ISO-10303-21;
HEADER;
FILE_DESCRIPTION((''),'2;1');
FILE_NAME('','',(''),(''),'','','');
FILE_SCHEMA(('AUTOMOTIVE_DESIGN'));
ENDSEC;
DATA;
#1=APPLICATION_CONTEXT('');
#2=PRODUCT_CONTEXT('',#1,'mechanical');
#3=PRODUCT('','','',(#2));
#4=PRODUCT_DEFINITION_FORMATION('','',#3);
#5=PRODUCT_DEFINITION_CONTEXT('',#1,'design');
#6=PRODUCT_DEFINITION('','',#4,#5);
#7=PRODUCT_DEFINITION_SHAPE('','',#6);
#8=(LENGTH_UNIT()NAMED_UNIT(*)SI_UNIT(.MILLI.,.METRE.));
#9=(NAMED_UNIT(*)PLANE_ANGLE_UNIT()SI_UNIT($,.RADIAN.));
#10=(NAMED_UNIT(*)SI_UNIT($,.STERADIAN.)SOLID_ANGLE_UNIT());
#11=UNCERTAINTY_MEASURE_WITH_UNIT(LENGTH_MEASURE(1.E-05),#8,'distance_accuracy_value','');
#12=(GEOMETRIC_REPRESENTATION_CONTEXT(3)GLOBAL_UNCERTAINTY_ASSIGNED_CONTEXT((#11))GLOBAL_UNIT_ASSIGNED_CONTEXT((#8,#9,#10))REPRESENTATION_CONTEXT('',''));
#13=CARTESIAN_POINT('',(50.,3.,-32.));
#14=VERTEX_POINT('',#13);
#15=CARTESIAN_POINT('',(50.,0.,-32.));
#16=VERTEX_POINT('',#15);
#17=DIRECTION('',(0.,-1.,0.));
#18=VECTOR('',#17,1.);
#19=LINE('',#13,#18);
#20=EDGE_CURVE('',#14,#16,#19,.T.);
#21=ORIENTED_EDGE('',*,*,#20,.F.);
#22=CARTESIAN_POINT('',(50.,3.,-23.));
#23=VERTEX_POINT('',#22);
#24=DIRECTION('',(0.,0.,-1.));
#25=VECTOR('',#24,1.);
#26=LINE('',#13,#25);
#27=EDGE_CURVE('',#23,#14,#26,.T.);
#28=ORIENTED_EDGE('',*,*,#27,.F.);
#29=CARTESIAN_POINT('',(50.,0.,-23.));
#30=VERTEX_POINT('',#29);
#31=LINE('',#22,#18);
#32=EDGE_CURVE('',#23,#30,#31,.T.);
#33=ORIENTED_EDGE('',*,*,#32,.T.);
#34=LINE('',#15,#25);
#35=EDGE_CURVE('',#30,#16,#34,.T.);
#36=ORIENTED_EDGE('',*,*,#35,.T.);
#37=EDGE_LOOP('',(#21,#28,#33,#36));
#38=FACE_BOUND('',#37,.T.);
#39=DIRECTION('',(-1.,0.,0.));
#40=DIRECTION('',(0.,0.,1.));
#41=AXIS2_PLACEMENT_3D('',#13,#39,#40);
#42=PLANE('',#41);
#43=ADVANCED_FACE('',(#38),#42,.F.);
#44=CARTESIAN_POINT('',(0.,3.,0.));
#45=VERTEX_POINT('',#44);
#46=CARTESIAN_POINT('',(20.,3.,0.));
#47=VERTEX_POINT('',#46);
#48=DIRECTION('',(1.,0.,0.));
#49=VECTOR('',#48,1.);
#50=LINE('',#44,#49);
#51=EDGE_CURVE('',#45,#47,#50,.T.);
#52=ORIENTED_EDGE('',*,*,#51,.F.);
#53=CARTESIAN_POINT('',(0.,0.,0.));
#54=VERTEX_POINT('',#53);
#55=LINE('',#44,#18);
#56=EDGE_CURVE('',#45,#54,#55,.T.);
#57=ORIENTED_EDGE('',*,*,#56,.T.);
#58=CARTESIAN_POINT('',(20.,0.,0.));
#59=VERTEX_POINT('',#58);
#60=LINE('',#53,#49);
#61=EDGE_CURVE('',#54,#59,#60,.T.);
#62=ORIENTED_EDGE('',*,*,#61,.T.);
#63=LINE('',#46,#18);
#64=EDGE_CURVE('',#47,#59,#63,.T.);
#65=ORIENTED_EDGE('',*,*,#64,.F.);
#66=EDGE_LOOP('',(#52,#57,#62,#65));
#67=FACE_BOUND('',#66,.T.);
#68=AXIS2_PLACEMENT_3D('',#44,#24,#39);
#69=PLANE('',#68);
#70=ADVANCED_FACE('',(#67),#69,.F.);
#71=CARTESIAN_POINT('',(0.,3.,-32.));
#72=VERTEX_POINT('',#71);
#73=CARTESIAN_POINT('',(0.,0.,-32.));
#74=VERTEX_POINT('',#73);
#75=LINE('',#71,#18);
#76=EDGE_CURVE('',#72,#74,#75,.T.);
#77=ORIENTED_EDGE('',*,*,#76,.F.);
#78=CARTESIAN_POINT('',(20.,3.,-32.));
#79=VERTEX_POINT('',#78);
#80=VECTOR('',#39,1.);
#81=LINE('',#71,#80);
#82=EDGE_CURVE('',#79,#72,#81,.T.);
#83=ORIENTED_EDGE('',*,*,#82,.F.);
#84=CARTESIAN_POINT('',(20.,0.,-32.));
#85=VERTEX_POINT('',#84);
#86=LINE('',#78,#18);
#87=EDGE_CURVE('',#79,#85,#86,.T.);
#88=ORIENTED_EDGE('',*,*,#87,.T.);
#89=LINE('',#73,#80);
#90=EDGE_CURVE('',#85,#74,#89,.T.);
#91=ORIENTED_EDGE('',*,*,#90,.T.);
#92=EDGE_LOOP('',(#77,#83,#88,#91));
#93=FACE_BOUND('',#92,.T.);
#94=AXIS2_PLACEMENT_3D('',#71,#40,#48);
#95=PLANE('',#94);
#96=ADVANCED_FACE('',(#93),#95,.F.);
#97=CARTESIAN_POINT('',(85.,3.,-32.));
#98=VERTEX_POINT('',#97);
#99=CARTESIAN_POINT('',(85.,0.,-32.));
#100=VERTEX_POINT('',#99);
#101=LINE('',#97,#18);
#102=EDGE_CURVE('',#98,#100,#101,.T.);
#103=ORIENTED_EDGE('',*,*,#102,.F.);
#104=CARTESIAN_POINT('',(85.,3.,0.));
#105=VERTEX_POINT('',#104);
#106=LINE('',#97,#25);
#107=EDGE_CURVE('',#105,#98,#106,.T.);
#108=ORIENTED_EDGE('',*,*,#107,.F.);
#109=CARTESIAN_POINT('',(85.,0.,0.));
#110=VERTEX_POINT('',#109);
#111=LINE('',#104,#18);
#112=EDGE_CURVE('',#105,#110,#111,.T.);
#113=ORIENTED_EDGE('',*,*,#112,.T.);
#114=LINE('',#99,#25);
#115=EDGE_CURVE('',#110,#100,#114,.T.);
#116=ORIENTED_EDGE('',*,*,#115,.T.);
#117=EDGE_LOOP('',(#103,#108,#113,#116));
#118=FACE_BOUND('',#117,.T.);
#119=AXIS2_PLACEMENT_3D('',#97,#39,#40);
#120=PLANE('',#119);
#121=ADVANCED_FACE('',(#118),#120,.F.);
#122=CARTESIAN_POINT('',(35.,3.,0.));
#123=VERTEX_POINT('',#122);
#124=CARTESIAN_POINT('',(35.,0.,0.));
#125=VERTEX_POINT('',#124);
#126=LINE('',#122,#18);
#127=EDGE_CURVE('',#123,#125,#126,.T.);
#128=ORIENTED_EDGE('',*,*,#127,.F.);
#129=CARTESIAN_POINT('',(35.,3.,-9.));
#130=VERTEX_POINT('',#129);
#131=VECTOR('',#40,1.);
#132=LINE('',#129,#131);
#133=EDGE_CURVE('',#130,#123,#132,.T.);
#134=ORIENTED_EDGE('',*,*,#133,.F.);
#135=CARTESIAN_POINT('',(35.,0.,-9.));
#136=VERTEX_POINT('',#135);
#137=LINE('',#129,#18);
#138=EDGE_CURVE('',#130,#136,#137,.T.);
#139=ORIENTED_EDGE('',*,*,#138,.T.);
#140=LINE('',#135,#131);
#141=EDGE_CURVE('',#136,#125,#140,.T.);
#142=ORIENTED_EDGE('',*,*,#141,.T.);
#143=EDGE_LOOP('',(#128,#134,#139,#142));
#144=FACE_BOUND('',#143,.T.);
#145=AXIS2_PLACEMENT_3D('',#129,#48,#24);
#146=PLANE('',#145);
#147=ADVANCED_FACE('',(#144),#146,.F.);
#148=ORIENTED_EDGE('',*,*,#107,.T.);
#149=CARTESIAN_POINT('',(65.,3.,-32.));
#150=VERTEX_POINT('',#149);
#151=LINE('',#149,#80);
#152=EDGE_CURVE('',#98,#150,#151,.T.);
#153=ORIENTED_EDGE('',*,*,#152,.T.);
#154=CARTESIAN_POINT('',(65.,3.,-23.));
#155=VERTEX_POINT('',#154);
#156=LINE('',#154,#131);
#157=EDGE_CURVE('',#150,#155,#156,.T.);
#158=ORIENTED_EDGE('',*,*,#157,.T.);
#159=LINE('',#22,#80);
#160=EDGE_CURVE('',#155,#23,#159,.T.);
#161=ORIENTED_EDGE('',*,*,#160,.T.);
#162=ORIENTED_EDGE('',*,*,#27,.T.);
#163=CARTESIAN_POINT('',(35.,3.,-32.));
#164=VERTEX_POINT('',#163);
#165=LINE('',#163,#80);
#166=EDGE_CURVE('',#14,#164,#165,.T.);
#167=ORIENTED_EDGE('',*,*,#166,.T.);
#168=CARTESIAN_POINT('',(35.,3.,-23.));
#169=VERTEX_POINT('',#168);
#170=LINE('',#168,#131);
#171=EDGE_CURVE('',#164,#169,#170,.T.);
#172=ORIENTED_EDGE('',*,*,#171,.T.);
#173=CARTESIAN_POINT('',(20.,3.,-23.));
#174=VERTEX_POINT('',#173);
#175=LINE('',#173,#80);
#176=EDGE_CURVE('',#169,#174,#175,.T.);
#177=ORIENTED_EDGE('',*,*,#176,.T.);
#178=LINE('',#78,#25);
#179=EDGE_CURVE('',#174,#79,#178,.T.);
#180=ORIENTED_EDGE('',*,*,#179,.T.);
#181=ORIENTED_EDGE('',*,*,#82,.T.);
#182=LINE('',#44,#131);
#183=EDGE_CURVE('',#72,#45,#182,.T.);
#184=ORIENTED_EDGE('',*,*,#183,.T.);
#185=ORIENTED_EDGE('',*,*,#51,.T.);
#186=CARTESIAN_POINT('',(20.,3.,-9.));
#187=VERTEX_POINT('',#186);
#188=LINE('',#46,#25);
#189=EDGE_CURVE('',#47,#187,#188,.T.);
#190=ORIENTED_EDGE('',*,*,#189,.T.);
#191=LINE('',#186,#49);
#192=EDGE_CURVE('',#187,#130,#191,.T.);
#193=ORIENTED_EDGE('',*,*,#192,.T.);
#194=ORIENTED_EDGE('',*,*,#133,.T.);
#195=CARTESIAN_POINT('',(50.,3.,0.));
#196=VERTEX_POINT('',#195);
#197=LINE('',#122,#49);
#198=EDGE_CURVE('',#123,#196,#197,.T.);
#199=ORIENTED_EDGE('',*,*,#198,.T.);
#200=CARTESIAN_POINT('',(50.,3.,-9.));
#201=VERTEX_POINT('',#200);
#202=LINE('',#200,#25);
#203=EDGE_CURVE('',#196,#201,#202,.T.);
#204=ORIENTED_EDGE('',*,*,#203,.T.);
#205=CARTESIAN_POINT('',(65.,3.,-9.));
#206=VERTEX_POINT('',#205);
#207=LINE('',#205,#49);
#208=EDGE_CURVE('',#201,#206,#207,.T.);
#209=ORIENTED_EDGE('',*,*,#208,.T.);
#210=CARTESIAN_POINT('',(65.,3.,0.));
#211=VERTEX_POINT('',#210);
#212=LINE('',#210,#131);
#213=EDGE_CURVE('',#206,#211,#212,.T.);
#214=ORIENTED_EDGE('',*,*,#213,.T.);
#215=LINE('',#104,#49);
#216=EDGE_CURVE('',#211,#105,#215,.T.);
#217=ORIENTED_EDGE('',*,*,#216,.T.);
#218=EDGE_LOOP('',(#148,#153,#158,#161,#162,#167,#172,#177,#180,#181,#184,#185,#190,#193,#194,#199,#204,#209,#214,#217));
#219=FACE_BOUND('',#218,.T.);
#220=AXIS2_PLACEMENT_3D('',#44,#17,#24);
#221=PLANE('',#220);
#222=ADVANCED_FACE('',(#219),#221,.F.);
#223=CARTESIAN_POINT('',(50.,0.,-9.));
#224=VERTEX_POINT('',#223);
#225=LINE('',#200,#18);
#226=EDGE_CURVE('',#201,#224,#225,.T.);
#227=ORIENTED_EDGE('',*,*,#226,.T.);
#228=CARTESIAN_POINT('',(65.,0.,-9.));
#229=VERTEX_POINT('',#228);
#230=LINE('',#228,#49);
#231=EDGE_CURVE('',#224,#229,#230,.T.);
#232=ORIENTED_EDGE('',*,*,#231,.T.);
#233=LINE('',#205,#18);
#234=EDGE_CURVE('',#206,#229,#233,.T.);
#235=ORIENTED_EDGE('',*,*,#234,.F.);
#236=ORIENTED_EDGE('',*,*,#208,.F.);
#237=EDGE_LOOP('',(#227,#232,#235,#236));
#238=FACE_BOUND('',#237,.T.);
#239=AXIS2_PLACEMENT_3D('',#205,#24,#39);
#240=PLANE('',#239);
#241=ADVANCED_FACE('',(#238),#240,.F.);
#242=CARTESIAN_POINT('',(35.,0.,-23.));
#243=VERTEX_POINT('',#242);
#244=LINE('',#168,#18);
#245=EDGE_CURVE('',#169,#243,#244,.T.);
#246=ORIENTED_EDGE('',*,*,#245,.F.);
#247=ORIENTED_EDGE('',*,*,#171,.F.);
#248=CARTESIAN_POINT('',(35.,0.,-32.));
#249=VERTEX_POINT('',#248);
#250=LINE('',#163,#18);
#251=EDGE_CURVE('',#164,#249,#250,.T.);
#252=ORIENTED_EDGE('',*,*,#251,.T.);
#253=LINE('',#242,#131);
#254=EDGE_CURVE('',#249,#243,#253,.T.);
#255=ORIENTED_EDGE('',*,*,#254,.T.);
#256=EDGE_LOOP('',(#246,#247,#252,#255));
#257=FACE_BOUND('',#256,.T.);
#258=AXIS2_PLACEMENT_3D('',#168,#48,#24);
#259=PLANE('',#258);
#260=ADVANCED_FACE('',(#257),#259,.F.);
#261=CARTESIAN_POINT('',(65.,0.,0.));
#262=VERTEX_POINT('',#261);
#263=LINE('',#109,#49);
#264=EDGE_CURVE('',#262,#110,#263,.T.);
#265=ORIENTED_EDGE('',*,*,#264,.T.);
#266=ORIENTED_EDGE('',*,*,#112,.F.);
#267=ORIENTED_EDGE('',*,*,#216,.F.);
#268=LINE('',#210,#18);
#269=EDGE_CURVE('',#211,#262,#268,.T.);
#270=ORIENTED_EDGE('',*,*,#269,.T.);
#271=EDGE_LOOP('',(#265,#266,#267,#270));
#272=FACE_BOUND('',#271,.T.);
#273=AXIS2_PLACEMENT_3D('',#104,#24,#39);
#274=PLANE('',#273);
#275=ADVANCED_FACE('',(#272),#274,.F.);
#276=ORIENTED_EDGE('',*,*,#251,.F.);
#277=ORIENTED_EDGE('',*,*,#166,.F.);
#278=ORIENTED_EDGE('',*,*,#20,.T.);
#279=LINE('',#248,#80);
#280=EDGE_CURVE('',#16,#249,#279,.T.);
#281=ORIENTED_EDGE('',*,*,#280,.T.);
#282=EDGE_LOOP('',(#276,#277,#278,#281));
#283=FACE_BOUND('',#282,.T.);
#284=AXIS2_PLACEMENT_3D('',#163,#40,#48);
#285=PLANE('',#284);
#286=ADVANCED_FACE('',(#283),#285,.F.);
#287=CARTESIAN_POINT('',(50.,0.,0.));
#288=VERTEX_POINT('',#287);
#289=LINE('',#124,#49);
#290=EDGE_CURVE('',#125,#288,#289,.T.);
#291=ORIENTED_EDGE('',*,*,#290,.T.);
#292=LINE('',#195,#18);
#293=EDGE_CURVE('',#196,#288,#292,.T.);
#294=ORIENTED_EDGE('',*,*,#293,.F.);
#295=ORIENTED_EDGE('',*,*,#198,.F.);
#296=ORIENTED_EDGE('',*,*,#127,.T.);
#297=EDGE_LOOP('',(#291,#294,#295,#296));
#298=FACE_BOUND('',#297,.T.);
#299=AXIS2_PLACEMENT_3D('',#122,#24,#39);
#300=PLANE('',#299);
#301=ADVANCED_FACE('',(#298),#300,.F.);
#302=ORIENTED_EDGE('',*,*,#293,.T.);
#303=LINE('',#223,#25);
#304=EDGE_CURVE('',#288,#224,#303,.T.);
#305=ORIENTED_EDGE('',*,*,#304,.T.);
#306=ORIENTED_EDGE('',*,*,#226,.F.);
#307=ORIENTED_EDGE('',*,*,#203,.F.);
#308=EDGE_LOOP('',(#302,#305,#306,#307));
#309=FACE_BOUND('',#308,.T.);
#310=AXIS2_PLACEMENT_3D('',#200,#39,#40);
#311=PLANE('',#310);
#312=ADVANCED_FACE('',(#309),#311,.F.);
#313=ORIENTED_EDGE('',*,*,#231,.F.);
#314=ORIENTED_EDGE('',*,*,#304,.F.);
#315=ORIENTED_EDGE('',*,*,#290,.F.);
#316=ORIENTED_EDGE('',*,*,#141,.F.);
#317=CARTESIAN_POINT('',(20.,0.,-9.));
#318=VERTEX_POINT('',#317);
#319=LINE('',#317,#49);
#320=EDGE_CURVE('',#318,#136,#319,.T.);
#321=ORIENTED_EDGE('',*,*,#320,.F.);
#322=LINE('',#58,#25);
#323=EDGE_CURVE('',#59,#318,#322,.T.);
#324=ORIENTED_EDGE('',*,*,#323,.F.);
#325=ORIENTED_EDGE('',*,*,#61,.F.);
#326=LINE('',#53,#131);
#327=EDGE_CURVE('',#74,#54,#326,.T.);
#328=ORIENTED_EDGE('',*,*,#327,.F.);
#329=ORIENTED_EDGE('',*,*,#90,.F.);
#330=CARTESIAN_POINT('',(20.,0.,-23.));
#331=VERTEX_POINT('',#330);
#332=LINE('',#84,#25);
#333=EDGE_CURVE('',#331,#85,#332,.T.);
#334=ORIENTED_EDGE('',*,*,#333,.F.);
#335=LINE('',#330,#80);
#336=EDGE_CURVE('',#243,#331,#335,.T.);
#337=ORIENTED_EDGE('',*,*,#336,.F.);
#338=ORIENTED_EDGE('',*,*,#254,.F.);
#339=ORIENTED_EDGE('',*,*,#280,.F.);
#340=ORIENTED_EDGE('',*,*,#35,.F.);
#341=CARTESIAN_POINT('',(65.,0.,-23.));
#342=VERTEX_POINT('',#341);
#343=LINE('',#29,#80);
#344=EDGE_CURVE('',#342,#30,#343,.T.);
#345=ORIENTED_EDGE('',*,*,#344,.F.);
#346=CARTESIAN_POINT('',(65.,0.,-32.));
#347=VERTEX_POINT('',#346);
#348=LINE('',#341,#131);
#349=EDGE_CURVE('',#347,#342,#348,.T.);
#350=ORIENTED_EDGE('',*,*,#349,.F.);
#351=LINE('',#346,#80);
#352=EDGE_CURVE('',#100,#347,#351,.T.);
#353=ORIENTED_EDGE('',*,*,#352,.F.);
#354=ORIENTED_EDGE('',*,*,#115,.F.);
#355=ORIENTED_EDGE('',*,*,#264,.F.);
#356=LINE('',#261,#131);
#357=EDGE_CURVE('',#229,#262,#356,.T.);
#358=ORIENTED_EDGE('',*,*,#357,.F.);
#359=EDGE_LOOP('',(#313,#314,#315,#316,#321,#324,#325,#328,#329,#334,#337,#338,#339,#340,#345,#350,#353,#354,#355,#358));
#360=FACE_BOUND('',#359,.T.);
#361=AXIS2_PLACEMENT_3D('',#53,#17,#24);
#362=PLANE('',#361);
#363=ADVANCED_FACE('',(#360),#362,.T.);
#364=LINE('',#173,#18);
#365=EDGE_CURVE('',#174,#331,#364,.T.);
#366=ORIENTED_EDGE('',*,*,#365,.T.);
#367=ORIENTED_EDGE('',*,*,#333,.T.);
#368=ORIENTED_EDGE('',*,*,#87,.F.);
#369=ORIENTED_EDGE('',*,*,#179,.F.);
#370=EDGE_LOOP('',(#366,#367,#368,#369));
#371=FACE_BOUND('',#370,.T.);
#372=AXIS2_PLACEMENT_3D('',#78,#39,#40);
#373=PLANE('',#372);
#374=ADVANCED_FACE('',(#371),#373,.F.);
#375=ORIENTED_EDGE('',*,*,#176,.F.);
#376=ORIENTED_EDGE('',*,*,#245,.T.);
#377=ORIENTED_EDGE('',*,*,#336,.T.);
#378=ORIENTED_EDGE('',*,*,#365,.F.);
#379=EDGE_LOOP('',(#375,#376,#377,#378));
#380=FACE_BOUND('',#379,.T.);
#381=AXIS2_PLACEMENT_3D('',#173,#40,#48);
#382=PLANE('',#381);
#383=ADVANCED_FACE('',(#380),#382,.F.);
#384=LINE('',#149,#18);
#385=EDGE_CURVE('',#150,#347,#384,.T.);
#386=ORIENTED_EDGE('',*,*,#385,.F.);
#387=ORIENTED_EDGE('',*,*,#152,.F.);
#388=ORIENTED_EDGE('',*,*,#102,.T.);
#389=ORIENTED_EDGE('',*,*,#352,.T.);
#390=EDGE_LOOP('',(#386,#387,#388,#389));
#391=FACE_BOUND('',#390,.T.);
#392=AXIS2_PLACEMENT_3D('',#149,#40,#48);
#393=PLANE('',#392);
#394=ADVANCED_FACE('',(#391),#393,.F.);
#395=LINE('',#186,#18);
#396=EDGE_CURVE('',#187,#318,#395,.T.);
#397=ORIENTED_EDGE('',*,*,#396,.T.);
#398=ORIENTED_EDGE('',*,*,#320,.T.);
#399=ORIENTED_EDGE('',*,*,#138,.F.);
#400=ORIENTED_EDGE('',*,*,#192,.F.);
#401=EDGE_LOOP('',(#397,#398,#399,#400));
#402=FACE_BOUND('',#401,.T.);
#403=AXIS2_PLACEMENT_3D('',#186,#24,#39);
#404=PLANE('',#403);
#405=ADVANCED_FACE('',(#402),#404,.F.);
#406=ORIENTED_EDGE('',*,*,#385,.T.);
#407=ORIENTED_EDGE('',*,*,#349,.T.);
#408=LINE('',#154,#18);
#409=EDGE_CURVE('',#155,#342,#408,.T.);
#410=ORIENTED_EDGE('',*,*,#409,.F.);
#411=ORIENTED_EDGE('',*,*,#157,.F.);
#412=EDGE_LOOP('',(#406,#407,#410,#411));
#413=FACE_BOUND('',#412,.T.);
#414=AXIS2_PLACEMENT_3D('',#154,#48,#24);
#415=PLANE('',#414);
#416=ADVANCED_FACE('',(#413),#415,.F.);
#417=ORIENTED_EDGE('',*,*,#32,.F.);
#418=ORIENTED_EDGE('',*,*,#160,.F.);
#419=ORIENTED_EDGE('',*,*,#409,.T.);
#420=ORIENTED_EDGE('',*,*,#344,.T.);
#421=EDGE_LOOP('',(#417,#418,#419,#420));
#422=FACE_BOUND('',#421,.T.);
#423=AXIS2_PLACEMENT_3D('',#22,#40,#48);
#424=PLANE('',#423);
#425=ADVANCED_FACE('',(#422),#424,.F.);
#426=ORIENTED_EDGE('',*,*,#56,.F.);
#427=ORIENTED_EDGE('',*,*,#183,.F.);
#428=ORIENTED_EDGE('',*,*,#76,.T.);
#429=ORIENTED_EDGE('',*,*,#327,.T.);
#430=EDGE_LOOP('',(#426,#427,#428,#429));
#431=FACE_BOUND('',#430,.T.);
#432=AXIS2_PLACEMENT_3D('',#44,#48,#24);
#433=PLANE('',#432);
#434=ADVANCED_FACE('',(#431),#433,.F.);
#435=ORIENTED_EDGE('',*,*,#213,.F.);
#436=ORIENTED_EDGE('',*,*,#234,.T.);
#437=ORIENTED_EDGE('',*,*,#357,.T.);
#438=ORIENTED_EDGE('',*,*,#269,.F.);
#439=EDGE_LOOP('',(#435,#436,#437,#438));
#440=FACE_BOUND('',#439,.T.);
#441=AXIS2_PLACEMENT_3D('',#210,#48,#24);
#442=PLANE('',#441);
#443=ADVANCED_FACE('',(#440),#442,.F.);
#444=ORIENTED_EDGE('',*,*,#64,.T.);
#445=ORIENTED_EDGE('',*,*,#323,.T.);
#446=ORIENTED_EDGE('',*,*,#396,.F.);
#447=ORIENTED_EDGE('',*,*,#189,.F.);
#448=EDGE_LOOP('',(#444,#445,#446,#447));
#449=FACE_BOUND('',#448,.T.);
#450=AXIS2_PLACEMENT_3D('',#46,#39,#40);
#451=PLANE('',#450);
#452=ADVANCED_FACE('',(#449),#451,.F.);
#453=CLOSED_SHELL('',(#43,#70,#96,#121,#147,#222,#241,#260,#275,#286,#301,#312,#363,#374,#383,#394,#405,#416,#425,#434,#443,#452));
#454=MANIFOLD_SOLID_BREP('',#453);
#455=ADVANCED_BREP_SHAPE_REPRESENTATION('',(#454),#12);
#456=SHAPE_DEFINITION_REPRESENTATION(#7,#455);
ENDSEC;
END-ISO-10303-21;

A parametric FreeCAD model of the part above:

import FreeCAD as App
import Part
import Sketcher
from FreeCAD import Vector
Q = App.Units.Quantity


def add_polygon(sketch, points):
    """Adds a closed chain of lines whose ends are joined by coincident constraints."""
    first, n = sketch.GeometryCount, len(points)
    for a, b in zip(points, points[1:] + points[:1]):
        sketch.addGeometry(Part.LineSegment(App.Vector(*a, 0), App.Vector(*b, 0)), False)
    for i in range(n):
        sketch.addConstraint(Sketcher.Constraint("Coincident", first + i, 2, first + (i + 1) % n, 1))

doc = App.newDocument("Part")
body = doc.addObject("PartDesign::Body", "Body")

# Sketch on XZ plane
sketch1 = body.newObject("Sketcher::SketchObject", "Sketch")
sketch1.AttachmentSupport = (doc.getObject("XZ_Plane"), [""])
sketch1.MapMode = "FlatFace"
add_polygon(sketch1, [(0, 0), (20, 0), (20, -9), (35, -9), (35, 0), (50, 0), (50, -9), (65, -9), (65, 0), (85, 0), (85, -32), (65, -32), (65, -23), (50, -23), (50, -32), (35, -32), (35, -23), (20, -23), (20, -32), (0, -32)])  # lines 0-19
sketch1.addConstraint(Sketcher.Constraint("Horizontal", 0))
sketch1.addConstraint(Sketcher.Constraint("Vertical", 1))
sketch1.addConstraint(Sketcher.Constraint("Horizontal", 2))
sketch1.addConstraint(Sketcher.Constraint("Vertical", 3))
sketch1.addConstraint(Sketcher.Constraint("Horizontal", 4))
sketch1.addConstraint(Sketcher.Constraint("Vertical", 5))
sketch1.addConstraint(Sketcher.Constraint("Horizontal", 6))
sketch1.addConstraint(Sketcher.Constraint("Vertical", 7))
sketch1.addConstraint(Sketcher.Constraint("Horizontal", 8))
sketch1.addConstraint(Sketcher.Constraint("Vertical", 9))
sketch1.addConstraint(Sketcher.Constraint("Horizontal", 10))
sketch1.addConstraint(Sketcher.Constraint("Vertical", 11))
sketch1.addConstraint(Sketcher.Constraint("Horizontal", 12))
sketch1.addConstraint(Sketcher.Constraint("Vertical", 13))
sketch1.addConstraint(Sketcher.Constraint("Horizontal", 14))
sketch1.addConstraint(Sketcher.Constraint("Vertical", 15))
sketch1.addConstraint(Sketcher.Constraint("Horizontal", 16))
sketch1.addConstraint(Sketcher.Constraint("Vertical", 17))
sketch1.addConstraint(Sketcher.Constraint("Horizontal", 18))
sketch1.addConstraint(Sketcher.Constraint("Vertical", 19))
sketch1.addConstraint(Sketcher.Constraint("Coincident", 19, 2, -1, 1))
sketch1.addConstraint(Sketcher.Constraint("PointOnObject", 3, 2, -1))
sketch1.addConstraint(Sketcher.Constraint("PointOnObject", 7, 2, -1))
sketch1.addConstraint(Sketcher.Constraint("Horizontal", 2, 2, 5, 2))
sketch1.addConstraint(Sketcher.Constraint("Horizontal", 10, 2, 13, 2))
sketch1.addConstraint(Sketcher.Constraint("Horizontal", 12, 2, 15, 2))
sketch1.addConstraint(Sketcher.Constraint("Horizontal", 14, 2, 17, 2))
sketch1.addConstraint(Sketcher.Constraint("Vertical", 7, 2, 10, 2))
sketch1.addConstraint(Sketcher.Constraint("Vertical", 5, 2, 12, 2))
sketch1.addConstraint(Sketcher.Constraint("Vertical", 3, 2, 14, 2))
sketch1.addConstraint(Sketcher.Constraint("Vertical", 1, 2, 16, 2))
sketch1.addConstraint(Sketcher.Constraint("Equal", 2, 4))
sketch1.addConstraint(Sketcher.Constraint("Equal", 4, 6))
sketch1.addConstraint(Sketcher.Constraint("Equal", 0, 8))
sketch1.addConstraint(Sketcher.Constraint("Equal", 7, 11))
sketch1.addConstraint(Sketcher.Constraint("DistanceX", 0, 1, 0, 2, Q("20 mm")))
sketch1.addConstraint(Sketcher.Constraint("DistanceX", 2, 1, 2, 2, Q("15 mm")))
sketch1.addConstraint(Sketcher.Constraint("DistanceY", 1, 2, 1, 1, Q("9 mm")))
sketch1.addConstraint(Sketcher.Constraint("DistanceY", 9, 2, 9, 1, Q("32 mm")))
pad1 = body.newObject("PartDesign::Pad", "Pad")
pad1.Profile = sketch1
pad1.Length = 3
pad1.Reversed = True

doc.recompute()
